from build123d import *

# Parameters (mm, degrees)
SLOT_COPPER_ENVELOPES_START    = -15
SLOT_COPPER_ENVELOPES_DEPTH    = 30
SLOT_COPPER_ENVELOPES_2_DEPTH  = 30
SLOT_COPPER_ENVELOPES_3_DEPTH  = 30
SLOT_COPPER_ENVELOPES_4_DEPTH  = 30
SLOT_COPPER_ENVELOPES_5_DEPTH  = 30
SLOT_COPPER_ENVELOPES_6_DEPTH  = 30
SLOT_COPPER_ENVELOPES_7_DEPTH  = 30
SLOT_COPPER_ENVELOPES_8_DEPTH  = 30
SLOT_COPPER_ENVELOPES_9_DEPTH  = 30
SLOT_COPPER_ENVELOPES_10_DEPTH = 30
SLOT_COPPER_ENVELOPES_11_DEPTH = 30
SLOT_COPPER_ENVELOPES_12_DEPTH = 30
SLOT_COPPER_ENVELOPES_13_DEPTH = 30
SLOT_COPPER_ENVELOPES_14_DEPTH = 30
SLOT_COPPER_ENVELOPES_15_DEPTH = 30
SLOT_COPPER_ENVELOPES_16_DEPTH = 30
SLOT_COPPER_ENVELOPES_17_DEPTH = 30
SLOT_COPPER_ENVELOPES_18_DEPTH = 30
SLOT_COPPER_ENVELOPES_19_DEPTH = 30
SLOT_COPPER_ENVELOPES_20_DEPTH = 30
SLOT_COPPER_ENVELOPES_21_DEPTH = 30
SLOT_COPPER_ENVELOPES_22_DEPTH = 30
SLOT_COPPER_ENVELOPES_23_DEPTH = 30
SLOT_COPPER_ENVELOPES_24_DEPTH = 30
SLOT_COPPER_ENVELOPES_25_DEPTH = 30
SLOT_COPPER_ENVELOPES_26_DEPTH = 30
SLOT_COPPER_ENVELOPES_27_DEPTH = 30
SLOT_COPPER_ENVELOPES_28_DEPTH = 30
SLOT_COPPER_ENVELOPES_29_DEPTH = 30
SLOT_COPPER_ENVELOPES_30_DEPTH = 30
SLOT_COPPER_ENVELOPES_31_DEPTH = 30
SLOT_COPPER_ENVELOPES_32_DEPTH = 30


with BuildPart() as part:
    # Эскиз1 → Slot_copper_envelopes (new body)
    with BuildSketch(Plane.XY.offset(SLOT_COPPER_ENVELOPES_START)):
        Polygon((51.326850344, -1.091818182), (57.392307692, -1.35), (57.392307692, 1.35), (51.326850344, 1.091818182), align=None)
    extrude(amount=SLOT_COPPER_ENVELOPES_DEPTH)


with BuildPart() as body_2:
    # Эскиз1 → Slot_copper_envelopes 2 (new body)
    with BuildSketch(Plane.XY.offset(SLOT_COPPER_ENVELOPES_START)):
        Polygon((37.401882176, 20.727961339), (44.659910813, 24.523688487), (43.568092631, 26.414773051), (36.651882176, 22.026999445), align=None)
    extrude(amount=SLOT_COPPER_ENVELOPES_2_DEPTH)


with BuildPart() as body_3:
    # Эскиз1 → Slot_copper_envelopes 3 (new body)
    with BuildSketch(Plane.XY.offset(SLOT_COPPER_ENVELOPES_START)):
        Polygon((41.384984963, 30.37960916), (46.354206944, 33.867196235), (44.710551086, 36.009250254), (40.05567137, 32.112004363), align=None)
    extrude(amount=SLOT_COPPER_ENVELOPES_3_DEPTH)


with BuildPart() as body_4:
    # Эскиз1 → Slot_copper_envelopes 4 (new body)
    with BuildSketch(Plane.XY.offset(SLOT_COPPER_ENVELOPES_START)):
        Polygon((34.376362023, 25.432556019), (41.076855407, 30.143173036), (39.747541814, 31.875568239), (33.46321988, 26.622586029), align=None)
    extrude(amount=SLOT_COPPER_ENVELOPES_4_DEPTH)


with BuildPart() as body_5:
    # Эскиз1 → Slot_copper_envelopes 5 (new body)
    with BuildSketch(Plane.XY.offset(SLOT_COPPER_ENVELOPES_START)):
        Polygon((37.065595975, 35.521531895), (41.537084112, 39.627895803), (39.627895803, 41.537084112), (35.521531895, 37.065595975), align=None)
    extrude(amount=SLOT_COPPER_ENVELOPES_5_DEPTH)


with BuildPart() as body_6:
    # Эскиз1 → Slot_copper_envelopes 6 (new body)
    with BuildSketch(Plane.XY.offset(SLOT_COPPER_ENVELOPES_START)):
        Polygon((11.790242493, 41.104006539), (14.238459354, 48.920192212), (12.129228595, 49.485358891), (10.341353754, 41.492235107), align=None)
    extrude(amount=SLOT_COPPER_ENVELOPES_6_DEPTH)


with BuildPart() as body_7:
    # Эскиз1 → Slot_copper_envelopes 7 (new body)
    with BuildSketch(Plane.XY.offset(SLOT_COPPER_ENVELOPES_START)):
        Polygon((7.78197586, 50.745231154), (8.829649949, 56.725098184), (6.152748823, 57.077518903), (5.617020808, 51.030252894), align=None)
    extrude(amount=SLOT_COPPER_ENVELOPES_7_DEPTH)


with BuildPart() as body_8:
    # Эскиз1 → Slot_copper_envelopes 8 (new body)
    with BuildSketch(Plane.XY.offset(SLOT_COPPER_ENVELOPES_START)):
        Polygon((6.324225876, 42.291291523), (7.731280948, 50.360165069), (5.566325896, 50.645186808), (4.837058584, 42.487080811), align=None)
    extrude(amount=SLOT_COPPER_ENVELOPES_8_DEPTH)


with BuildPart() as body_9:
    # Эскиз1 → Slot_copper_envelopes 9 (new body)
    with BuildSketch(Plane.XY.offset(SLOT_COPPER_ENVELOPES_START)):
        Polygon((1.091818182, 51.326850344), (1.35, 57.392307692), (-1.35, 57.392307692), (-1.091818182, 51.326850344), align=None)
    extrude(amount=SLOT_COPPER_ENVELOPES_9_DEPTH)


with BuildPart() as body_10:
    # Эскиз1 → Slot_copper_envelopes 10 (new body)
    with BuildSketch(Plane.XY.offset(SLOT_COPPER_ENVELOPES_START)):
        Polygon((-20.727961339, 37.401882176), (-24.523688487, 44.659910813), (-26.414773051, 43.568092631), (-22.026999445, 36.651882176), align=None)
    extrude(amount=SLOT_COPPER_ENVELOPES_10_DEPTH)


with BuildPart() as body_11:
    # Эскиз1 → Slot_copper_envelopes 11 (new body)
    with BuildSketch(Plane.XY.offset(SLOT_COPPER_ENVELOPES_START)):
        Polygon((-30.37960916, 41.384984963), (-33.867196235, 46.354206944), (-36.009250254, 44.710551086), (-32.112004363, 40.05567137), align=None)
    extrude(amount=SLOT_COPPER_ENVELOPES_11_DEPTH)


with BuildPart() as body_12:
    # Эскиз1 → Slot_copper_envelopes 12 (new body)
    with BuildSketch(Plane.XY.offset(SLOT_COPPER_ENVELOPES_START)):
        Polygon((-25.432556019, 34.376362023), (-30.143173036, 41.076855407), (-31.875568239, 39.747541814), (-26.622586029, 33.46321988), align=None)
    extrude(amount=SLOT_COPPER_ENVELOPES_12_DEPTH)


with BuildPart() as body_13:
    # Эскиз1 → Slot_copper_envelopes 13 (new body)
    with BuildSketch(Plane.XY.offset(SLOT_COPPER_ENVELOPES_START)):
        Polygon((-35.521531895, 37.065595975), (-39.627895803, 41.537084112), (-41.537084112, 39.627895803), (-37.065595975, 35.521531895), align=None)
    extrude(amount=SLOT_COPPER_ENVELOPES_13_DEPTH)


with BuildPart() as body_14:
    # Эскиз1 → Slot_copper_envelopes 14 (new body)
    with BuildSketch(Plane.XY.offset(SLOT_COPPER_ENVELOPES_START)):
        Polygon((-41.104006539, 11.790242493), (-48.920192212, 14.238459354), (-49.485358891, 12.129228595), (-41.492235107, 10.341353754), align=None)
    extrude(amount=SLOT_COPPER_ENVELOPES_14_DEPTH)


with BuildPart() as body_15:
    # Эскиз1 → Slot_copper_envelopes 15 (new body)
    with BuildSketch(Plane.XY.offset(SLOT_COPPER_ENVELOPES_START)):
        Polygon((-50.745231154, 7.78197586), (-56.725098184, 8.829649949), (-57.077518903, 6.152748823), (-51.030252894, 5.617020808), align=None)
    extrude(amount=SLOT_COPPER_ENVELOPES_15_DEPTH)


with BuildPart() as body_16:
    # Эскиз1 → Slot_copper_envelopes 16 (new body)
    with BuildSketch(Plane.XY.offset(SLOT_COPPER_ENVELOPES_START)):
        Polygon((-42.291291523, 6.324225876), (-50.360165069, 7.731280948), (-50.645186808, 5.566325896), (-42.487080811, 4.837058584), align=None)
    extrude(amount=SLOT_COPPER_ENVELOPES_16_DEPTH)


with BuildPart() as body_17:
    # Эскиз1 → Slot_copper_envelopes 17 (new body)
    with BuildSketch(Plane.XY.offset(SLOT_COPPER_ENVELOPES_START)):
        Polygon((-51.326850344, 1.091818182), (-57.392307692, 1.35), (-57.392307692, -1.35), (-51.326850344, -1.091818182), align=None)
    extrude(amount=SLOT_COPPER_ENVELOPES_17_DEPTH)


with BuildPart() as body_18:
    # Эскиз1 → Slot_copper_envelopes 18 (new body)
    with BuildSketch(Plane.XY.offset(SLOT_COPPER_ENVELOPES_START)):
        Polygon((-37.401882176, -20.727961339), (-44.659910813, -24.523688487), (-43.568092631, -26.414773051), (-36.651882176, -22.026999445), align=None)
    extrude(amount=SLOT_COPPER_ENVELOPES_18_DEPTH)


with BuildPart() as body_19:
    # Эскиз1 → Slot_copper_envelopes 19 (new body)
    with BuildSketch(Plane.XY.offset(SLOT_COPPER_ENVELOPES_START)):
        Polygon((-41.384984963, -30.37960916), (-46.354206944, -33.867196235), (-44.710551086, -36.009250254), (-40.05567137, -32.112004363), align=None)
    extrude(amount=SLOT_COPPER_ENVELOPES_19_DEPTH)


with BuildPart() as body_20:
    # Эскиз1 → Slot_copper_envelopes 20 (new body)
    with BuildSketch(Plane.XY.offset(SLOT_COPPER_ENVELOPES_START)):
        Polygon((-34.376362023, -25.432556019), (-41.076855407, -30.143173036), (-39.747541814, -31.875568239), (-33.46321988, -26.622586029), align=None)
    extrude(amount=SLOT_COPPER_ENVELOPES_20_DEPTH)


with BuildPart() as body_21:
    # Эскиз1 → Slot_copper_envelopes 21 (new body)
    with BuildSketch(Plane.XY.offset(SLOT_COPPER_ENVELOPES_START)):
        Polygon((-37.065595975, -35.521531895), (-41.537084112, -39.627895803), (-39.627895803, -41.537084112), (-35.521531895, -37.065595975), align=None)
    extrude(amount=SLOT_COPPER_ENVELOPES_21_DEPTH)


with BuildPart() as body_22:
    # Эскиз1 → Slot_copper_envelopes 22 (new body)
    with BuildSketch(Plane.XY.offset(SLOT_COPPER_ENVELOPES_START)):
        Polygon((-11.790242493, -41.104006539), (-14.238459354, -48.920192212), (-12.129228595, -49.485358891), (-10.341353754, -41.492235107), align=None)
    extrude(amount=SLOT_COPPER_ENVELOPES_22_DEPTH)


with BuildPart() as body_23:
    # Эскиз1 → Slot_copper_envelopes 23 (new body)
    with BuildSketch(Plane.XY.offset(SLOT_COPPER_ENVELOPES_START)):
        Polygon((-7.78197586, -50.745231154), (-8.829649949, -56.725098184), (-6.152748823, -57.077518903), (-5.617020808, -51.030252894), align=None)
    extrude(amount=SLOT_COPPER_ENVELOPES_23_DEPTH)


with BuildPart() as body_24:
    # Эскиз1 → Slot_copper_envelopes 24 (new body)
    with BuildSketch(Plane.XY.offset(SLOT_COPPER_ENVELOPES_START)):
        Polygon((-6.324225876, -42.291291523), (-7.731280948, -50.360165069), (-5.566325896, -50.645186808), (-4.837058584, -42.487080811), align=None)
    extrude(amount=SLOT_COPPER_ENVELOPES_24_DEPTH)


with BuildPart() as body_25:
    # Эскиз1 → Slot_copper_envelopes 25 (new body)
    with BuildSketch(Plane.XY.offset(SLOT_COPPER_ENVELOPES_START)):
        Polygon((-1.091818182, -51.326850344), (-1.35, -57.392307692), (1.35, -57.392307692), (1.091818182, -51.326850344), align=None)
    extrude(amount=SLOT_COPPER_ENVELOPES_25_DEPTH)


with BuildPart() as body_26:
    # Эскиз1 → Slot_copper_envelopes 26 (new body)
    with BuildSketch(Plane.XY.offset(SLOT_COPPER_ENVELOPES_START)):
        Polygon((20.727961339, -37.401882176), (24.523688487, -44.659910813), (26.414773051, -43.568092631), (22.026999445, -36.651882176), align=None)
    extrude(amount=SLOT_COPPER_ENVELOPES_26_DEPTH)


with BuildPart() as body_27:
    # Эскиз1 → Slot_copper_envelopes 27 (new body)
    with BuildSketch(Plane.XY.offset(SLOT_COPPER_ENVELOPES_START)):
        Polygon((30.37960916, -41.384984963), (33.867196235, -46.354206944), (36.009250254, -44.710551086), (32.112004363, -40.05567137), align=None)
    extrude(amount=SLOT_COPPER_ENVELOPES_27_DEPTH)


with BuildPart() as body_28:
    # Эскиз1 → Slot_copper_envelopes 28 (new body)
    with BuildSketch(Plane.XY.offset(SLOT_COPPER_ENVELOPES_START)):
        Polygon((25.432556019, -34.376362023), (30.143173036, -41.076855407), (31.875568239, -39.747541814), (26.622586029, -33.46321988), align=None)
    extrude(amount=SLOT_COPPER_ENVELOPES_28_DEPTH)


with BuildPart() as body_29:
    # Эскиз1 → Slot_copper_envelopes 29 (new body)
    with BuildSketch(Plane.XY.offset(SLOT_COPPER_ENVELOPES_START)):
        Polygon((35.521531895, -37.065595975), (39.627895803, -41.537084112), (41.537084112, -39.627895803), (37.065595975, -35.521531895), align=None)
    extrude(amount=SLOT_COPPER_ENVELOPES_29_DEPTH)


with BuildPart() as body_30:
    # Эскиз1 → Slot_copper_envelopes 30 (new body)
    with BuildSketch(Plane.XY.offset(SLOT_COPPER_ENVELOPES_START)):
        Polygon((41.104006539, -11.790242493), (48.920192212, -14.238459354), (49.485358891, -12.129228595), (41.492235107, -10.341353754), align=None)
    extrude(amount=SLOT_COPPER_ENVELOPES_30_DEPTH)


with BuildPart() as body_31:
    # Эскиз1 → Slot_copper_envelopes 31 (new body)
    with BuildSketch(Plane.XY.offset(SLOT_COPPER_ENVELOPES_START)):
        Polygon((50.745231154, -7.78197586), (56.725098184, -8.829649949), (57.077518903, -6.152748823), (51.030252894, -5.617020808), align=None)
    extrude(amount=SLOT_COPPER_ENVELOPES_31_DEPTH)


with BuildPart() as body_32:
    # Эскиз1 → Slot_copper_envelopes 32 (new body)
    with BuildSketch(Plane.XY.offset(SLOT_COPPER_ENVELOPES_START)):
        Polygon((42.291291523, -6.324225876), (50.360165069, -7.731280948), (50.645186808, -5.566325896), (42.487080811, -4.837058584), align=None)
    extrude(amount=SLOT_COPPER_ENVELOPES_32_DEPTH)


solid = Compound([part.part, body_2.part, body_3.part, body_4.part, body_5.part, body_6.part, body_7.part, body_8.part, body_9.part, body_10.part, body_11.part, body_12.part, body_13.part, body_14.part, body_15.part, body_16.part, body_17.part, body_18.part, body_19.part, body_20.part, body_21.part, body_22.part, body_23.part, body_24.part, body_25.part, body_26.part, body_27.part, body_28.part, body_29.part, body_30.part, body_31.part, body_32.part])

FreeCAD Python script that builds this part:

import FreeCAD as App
import Part
import Sketcher
Q = App.Units.Quantity


def add_polygon(sketch, points):
    """Adds a closed chain of lines whose ends are joined by coincident constraints."""
    first, n = sketch.GeometryCount, len(points)
    for a, b in zip(points, points[1:] + points[:1]):
        sketch.addGeometry(Part.LineSegment(App.Vector(*a, 0), App.Vector(*b, 0)), False)
    for i in range(n):
        sketch.addConstraint(Sketcher.Constraint("Coincident", first + i, 2, first + (i + 1) % n, 1))

doc = App.newDocument("Part")
body = doc.addObject("PartDesign::Body", "Body")

# Sketch on XY plane
sketch1 = body.newObject("Sketcher::SketchObject", "Sketch")
sketch1.AttachmentSupport = (doc.getObject("XY_Plane"), [""])
sketch1.MapMode = "FlatFace"
sketch1.AttachmentOffset = App.Placement(App.Vector(0, 0, -15), App.Rotation())
add_polygon(sketch1, [(51.3, -1.1), (57.4, -1.4), (57.4, 1.4), (51.3, 1.1)])  # lines 0-3
sketch1.addConstraint(Sketcher.Constraint("Vertical", 1))
sketch1.addConstraint(Sketcher.Constraint("Vertical", 3))
sketch1.addConstraint(Sketcher.Constraint("Equal", 0, 2))
sketch1.addConstraint(Sketcher.Constraint("DistanceY", 1, 1, 1, 2, Q("2.7 mm")))
sketch1.addConstraint(Sketcher.Constraint("DistanceY", 0, 2, -1, 1, Q("1.35 mm")))
sketch1.addConstraint(Sketcher.Constraint("Distance", 0, Q("6.07095 mm")))
sketch1.addConstraint(Sketcher.Constraint("DistanceY", 3, 2, 3, 1, Q("2.183636 mm")))
sketch1.addConstraint(Sketcher.Constraint("DistanceX", -1, 1, 2, 2, Q("51.32685 mm")))
pad1 = body.newObject("PartDesign::Pad", "Pad")
pad1.Profile = sketch1
pad1.Length = 30
body2 = doc.addObject("PartDesign::Body", "Body001")

# Sketch on XY plane
sketch2 = body2.newObject("Sketcher::SketchObject", "Sketch001")
sketch2.AttachmentSupport = (doc.getObject("XY_Plane001"), [""])
sketch2.MapMode = "FlatFace"
sketch2.AttachmentOffset = App.Placement(App.Vector(0, 0, -15), App.Rotation())
add_polygon(sketch2, [(37.4, 20.7), (44.7, 24.5), (43.6, 26.4), (36.7, 22)])  # lines 0-3
sketch2.addConstraint(Sketcher.Constraint("Parallel", 1, 3))
sketch2.addConstraint(Sketcher.Constraint("Equal", 0, 2))
sketch2.addConstraint(Sketcher.Constraint("Angle", 1, Q("120 deg")))
sketch2.addConstraint(Sketcher.Constraint("Distance", 3, Q("1.5 mm")))
sketch2.addConstraint(Sketcher.Constraint("DistanceY", -1, 1, 2, 2, Q("22.026999 mm")))
sketch2.addConstraint(Sketcher.Constraint("DistanceX", -1, 1, 0, 2, Q("44.659911 mm")))
sketch2.addConstraint(Sketcher.Constraint("DistanceY", -1, 1, 0, 2, Q("24.523688 mm")))
sketch2.addConstraint(Sketcher.Constraint("DistanceX", 1, 2, 0, 2, Q("1.091818 mm")))
pad2 = body2.newObject("PartDesign::Pad", "Pad001")
pad2.Profile = sketch2
pad2.Length = 30
body3 = doc.addObject("PartDesign::Body", "Body002")

# Sketch on XY plane
sketch3 = body3.newObject("Sketcher::SketchObject", "Sketch002")
sketch3.AttachmentSupport = (doc.getObject("XY_Plane002"), [""])
sketch3.MapMode = "FlatFace"
sketch3.AttachmentOffset = App.Placement(App.Vector(0, 0, -15), App.Rotation())
add_polygon(sketch3, [(41.4, 30.4), (46.4, 33.9), (44.7, 36), (40.1, 32.1)])  # lines 0-3
sketch3.addConstraint(Sketcher.Constraint("Parallel", 1, 3))
sketch3.addConstraint(Sketcher.Constraint("Equal", 0, 2))
sketch3.addConstraint(Sketcher.Constraint("Angle", 1, Q("127.5 deg")))
sketch3.addConstraint(Sketcher.Constraint("Distance", 1, Q("2.7 mm")))
sketch3.addConstraint(Sketcher.Constraint("Distance", 0, Q("6.07095 mm")))
sketch3.addConstraint(Sketcher.Constraint("DistanceX", -1, 1, 1, 2, Q("44.710551 mm")))
sketch3.addConstraint(Sketcher.Constraint("DistanceY", -1, 1, 1, 2, Q("36.00925 mm")))
sketch3.addConstraint(Sketcher.Constraint("DistanceX", -1, 1, 2, 2, Q("40.055671 mm")))
pad3 = body3.newObject("PartDesign::Pad", "Pad002")
pad3.Profile = sketch3
pad3.Length = 30
body4 = doc.addObject("PartDesign::Body", "Body003")

# Sketch on XY plane
sketch4 = body4.newObject("Sketcher::SketchObject", "Sketch003")
sketch4.AttachmentSupport = (doc.getObject("XY_Plane003"), [""])
sketch4.MapMode = "FlatFace"
sketch4.AttachmentOffset = App.Placement(App.Vector(0, 0, -15), App.Rotation())
add_polygon(sketch4, [(34.4, 25.4), (41.1, 30.1), (39.7, 31.9), (33.5, 26.6)])  # lines 0-3
sketch4.addConstraint(Sketcher.Constraint("Parallel", 1, 3))
sketch4.addConstraint(Sketcher.Constraint("Equal", 0, 2))
sketch4.addConstraint(Sketcher.Constraint("Angle", 1, Q("127.5 deg")))
sketch4.addConstraint(Sketcher.Constraint("Distance", 3, Q("1.5 mm")))
sketch4.addConstraint(Sketcher.Constraint("DistanceX", -1, 1, 1, 2, Q("39.747542 mm")))
sketch4.addConstraint(Sketcher.Constraint("DistanceY", -1, 1, 1, 2, Q("31.875568 mm")))
sketch4.addConstraint(Sketcher.Constraint("DistanceX", -1, 1, 2, 2, Q("33.46322 mm")))
sketch4.addConstraint(Sketcher.Constraint("Distance", 0, Q("8.190636 mm")))
pad4 = body4.newObject("PartDesign::Pad", "Pad003")
pad4.Profile = sketch4
pad4.Length = 30
body5 = doc.addObject("PartDesign::Body", "Body004")

# Sketch on XY plane
sketch5 = body5.newObject("Sketcher::SketchObject", "Sketch004")
sketch5.AttachmentSupport = (doc.getObject("XY_Plane004"), [""])
sketch5.MapMode = "FlatFace"
sketch5.AttachmentOffset = App.Placement(App.Vector(0, 0, -15), App.Rotation())
add_polygon(sketch5, [(37.1, 35.5), (41.5, 39.6), (39.6, 41.5), (35.5, 37.1)])  # lines 0-3
sketch5.addConstraint(Sketcher.Constraint("Parallel", 1, 3))
sketch5.addConstraint(Sketcher.Constraint("Equal", 0, 2))
sketch5.addConstraint(Sketcher.Constraint("Angle", 1, Q("135 deg")))
sketch5.addConstraint(Sketcher.Constraint("Distance", 1, Q("2.7 mm")))
sketch5.addConstraint(Sketcher.Constraint("DistanceY", 2, 2, 0, 2, Q("2.5623 mm")))
sketch5.addConstraint(Sketcher.Constraint("Distance", 0, Q("6.07095 mm")))
sketch5.addConstraint(Sketcher.Constraint("DistanceX", -1, 1, 2, 2, Q("35.521532 mm")))
sketch5.addConstraint(Sketcher.Constraint("DistanceY", -1, 1, 3, 2, Q("35.521532 mm")))
pad5 = body5.newObject("PartDesign::Pad", "Pad004")
pad5.Profile = sketch5
pad5.Length = 30
body6 = doc.addObject("PartDesign::Body", "Body005")

# Sketch on XY plane
sketch6 = body6.newObject("Sketcher::SketchObject", "Sketch005")
sketch6.AttachmentSupport = (doc.getObject("XY_Plane005"), [""])
sketch6.MapMode = "FlatFace"
sketch6.AttachmentOffset = App.Placement(App.Vector(0, 0, -15), App.Rotation())
add_polygon(sketch6, [(11.8, 41.1), (14.2, 48.9), (12.1, 49.5), (10.3, 41.5)])  # lines 0-3
sketch6.addConstraint(Sketcher.Constraint("Parallel", 1, 3))
sketch6.addConstraint(Sketcher.Constraint("Equal", 0, 2))
sketch6.addConstraint(Sketcher.Constraint("Angle", 1, Q("165 deg")))
sketch6.addConstraint(Sketcher.Constraint("Distance", 3, Q("1.5 mm")))
sketch6.addConstraint(Sketcher.Constraint("DistanceX", -1, 1, 0, 2, Q("14.238459 mm")))
sketch6.addConstraint(Sketcher.Constraint("DistanceX", -1, 1, 1, 2, Q("12.129229 mm")))
sketch6.addConstraint(Sketcher.Constraint("DistanceY", -1, 1, 1, 2, Q("49.485359 mm")))
sketch6.addConstraint(Sketcher.Constraint("Distance", 0, Q("8.190636 mm")))
pad6 = body6.newObject("PartDesign::Pad", "Pad005")
pad6.Profile = sketch6
pad6.Length = 30
body7 = doc.addObject("PartDesign::Body", "Body006")

# Sketch on XY plane
sketch7 = body7.newObject("Sketcher::SketchObject", "Sketch006")
sketch7.AttachmentSupport = (doc.getObject("XY_Plane006"), [""])
sketch7.MapMode = "FlatFace"
sketch7.AttachmentOffset = App.Placement(App.Vector(0, 0, -15), App.Rotation())
add_polygon(sketch7, [(7.8, 50.7), (8.8, 56.7), (6.2, 57.1), (5.6, 51)])  # lines 0-3
sketch7.addConstraint(Sketcher.Constraint("Parallel", 1, 3))
sketch7.addConstraint(Sketcher.Constraint("Equal", 0, 2))
sketch7.addConstraint(Sketcher.Constraint("Angle", 1, Q("172.5 deg")))
sketch7.addConstraint(Sketcher.Constraint("Distance", 1, Q("2.7 mm")))
sketch7.addConstraint(Sketcher.Constraint("DistanceY", -1, 1, 0, 2, Q("56.725098 mm")))
sketch7.addConstraint(Sketcher.Constraint("Distance", 0, Q("6.07095 mm")))
sketch7.addConstraint(Sketcher.Constraint("DistanceX", -1, 1, 0, 2, Q("8.82965 mm")))
sketch7.addConstraint(Sketcher.Constraint("DistanceX", -1, 1, 2, 2, Q("5.617021 mm")))
pad7 = body7.newObject("PartDesign::Pad", "Pad006")
pad7.Profile = sketch7
pad7.Length = 30
body8 = doc.addObject("PartDesign::Body", "Body007")

# Sketch on XY plane
sketch8 = body8.newObject("Sketcher::SketchObject", "Sketch007")
sketch8.AttachmentSupport = (doc.getObject("XY_Plane007"), [""])
sketch8.MapMode = "FlatFace"
sketch8.AttachmentOffset = App.Placement(App.Vector(0, 0, -15), App.Rotation())
add_polygon(sketch8, [(6.3, 42.3), (7.7, 50.4), (5.6, 50.6), (4.8, 42.5)])  # lines 0-3
sketch8.addConstraint(Sketcher.Constraint("Parallel", 1, 3))
sketch8.addConstraint(Sketcher.Constraint("Equal", 0, 2))
sketch8.addConstraint(Sketcher.Constraint("Angle", 1, Q("172.5 deg")))
sketch8.addConstraint(Sketcher.Constraint("Distance", 3, Q("1.5 mm")))
sketch8.addConstraint(Sketcher.Constraint("DistanceX", 1, 2, 3, 2, Q("0.7579 mm")))
sketch8.addConstraint(Sketcher.Constraint("DistanceX", -1, 1, 0, 2, Q("7.731281 mm")))
sketch8.addConstraint(Sketcher.Constraint("DistanceX", -1, 1, 2, 2, Q("4.837059 mm")))
sketch8.addConstraint(Sketcher.Constraint("DistanceY", -1, 1, 2, 2, Q("42.487081 mm")))
pad8 = body8.newObject("PartDesign::Pad", "Pad007")
pad8.Profile = sketch8
pad8.Length = 30
body9 = doc.addObject("PartDesign::Body", "Body008")

# Sketch on XY plane
sketch9 = body9.newObject("Sketcher::SketchObject", "Sketch008")
sketch9.AttachmentSupport = (doc.getObject("XY_Plane008"), [""])
sketch9.MapMode = "FlatFace"
sketch9.AttachmentOffset = App.Placement(App.Vector(0, 0, -15), App.Rotation())
add_polygon(sketch9, [(1.1, 51.3), (1.4, 57.4), (-1.4, 57.4), (-1.1, 51.3)])  # lines 0-3
sketch9.addConstraint(Sketcher.Constraint("Horizontal", 1))
sketch9.addConstraint(Sketcher.Constraint("Horizontal", 3))
sketch9.addConstraint(Sketcher.Constraint("Equal", 0, 2))
sketch9.addConstraint(Sketcher.Constraint("DistanceX", 1, 2, 1, 1, Q("2.7 mm")))
sketch9.addConstraint(Sketcher.Constraint("DistanceX", -1, 1, 0, 2, Q("1.35 mm")))
sketch9.addConstraint(Sketcher.Constraint("Distance", 0, Q("6.07095 mm")))
sketch9.addConstraint(Sketcher.Constraint("DistanceX", 3, 1, 3, 2, Q("2.183636 mm")))
sketch9.addConstraint(Sketcher.Constraint("DistanceY", -1, 1, 2, 2, Q("51.32685 mm")))
pad9 = body9.newObject("PartDesign::Pad", "Pad008")
pad9.Profile = sketch9
pad9.Length = 30
body10 = doc.addObject("PartDesign::Body", "Body009")

# Sketch on XY plane
sketch10 = body10.newObject("Sketcher::SketchObject", "Sketch009")
sketch10.AttachmentSupport = (doc.getObject("XY_Plane009"), [""])
sketch10.MapMode = "FlatFace"
sketch10.AttachmentOffset = App.Placement(App.Vector(0, 0, -15), App.Rotation())
add_polygon(sketch10, [(-20.7, 37.4), (-24.5, 44.7), (-26.4, 43.6), (-22, 36.7)])  # lines 0-3
sketch10.addConstraint(Sketcher.Constraint("Parallel", 1, 3))
sketch10.addConstraint(Sketcher.Constraint("Equal", 0, 2))
sketch10.addConstraint(Sketcher.Constraint("Angle", 1, Q("-150 deg")))
sketch10.addConstraint(Sketcher.Constraint("Distance", 3, Q("1.5 mm")))
sketch10.addConstraint(Sketcher.Constraint("DistanceX", 2, 2, -1, 1, Q("22.026999 mm")))
sketch10.addConstraint(Sketcher.Constraint("DistanceX", 0, 2, -1, 1, Q("24.523688 mm")))
sketch10.addConstraint(Sketcher.Constraint("DistanceY", -1, 1, 0, 2, Q("44.659911 mm")))
sketch10.addConstraint(Sketcher.Constraint("DistanceY", 1, 2, 0, 2, Q("1.091818 mm")))
pad10 = body10.newObject("PartDesign::Pad", "Pad009")
pad10.Profile = sketch10
pad10.Length = 30
body11 = doc.addObject("PartDesign::Body", "Body010")

# Sketch on XY plane
sketch11 = body11.newObject("Sketcher::SketchObject", "Sketch010")
sketch11.AttachmentSupport = (doc.getObject("XY_Plane010"), [""])
sketch11.MapMode = "FlatFace"
sketch11.AttachmentOffset = App.Placement(App.Vector(0, 0, -15), App.Rotation())
add_polygon(sketch11, [(-30.4, 41.4), (-33.9, 46.4), (-36, 44.7), (-32.1, 40.1)])  # lines 0-3
sketch11.addConstraint(Sketcher.Constraint("Parallel", 1, 3))
sketch11.addConstraint(Sketcher.Constraint("Equal", 0, 2))
sketch11.addConstraint(Sketcher.Constraint("Angle", 1, Q("-142.5 deg")))
sketch11.addConstraint(Sketcher.Constraint("Distance", 1, Q("2.7 mm")))
sketch11.addConstraint(Sketcher.Constraint("Distance", 0, Q("6.07095 mm")))
sketch11.addConstraint(Sketcher.Constraint("DistanceX", 1, 2, -1, 1, Q("36.00925 mm")))
sketch11.addConstraint(Sketcher.Constraint("DistanceY", -1, 1, 1, 2, Q("44.710551 mm")))
sketch11.addConstraint(Sketcher.Constraint("DistanceY", -1, 1, 2, 2, Q("40.055671 mm")))
pad11 = body11.newObject("PartDesign::Pad", "Pad010")
pad11.Profile = sketch11
pad11.Length = 30
body12 = doc.addObject("PartDesign::Body", "Body011")

# Sketch on XY plane
sketch12 = body12.newObject("Sketcher::SketchObject", "Sketch011")
sketch12.AttachmentSupport = (doc.getObject("XY_Plane011"), [""])
sketch12.MapMode = "FlatFace"
sketch12.AttachmentOffset = App.Placement(App.Vector(0, 0, -15), App.Rotation())
add_polygon(sketch12, [(-25.4, 34.4), (-30.1, 41.1), (-31.9, 39.7), (-26.6, 33.5)])  # lines 0-3
sketch12.addConstraint(Sketcher.Constraint("Parallel", 1, 3))
sketch12.addConstraint(Sketcher.Constraint("Equal", 0, 2))
sketch12.addConstraint(Sketcher.Constraint("Angle", 1, Q("-142.5 deg")))
sketch12.addConstraint(Sketcher.Constraint("Distance", 3, Q("1.5 mm")))
sketch12.addConstraint(Sketcher.Constraint("DistanceX", 1, 2, -1, 1, Q("31.875568 mm")))
sketch12.addConstraint(Sketcher.Constraint("DistanceY", -1, 1, 1, 2, Q("39.747542 mm")))
sketch12.addConstraint(Sketcher.Constraint("DistanceY", -1, 1, 2, 2, Q("33.46322 mm")))
sketch12.addConstraint(Sketcher.Constraint("Distance", 0, Q("8.190636 mm")))
pad12 = body12.newObject("PartDesign::Pad", "Pad011")
pad12.Profile = sketch12
pad12.Length = 30
body13 = doc.addObject("PartDesign::Body", "Body012")

# Sketch on XY plane
sketch13 = body13.newObject("Sketcher::SketchObject", "Sketch012")
sketch13.AttachmentSupport = (doc.getObject("XY_Plane012"), [""])
sketch13.MapMode = "FlatFace"
sketch13.AttachmentOffset = App.Placement(App.Vector(0, 0, -15), App.Rotation())
add_polygon(sketch13, [(-35.5, 37.1), (-39.6, 41.5), (-41.5, 39.6), (-37.1, 35.5)])  # lines 0-3
sketch13.addConstraint(Sketcher.Constraint("Parallel", 1, 3))
sketch13.addConstraint(Sketcher.Constraint("Equal", 0, 2))
sketch13.addConstraint(Sketcher.Constraint("Angle", 1, Q("-135 deg")))
sketch13.addConstraint(Sketcher.Constraint("Distance", 1, Q("2.7 mm")))
sketch13.addConstraint(Sketcher.Constraint("DistanceX", 0, 2, 2, 2, Q("2.5623 mm")))
sketch13.addConstraint(Sketcher.Constraint("Distance", 0, Q("6.07095 mm")))
sketch13.addConstraint(Sketcher.Constraint("DistanceY", -1, 1, 2, 2, Q("35.521532 mm")))
sketch13.addConstraint(Sketcher.Constraint("DistanceX", 3, 2, -1, 1, Q("35.521532 mm")))
pad13 = body13.newObject("PartDesign::Pad", "Pad012")
pad13.Profile = sketch13
pad13.Length = 30
body14 = doc.addObject("PartDesign::Body", "Body013")

# Sketch on XY plane
sketch14 = body14.newObject("Sketcher::SketchObject", "Sketch013")
sketch14.AttachmentSupport = (doc.getObject("XY_Plane013"), [""])
sketch14.MapMode = "FlatFace"
sketch14.AttachmentOffset = App.Placement(App.Vector(0, 0, -15), App.Rotation())
add_polygon(sketch14, [(-41.1, 11.8), (-48.9, 14.2), (-49.5, 12.1), (-41.5, 10.3)])  # lines 0-3
sketch14.addConstraint(Sketcher.Constraint("Parallel", 1, 3))
sketch14.addConstraint(Sketcher.Constraint("Equal", 0, 2))
sketch14.addConstraint(Sketcher.Constraint("Angle", 1, Q("-105 deg")))
sketch14.addConstraint(Sketcher.Constraint("Distance", 3, Q("1.5 mm")))
sketch14.addConstraint(Sketcher.Constraint("DistanceY", -1, 1, 0, 2, Q("14.238459 mm")))
sketch14.addConstraint(Sketcher.Constraint("DistanceX", 1, 2, -1, 1, Q("49.485359 mm")))
sketch14.addConstraint(Sketcher.Constraint("DistanceY", -1, 1, 1, 2, Q("12.129229 mm")))
sketch14.addConstraint(Sketcher.Constraint("Distance", 0, Q("8.190636 mm")))
pad14 = body14.newObject("PartDesign::Pad", "Pad013")
pad14.Profile = sketch14
pad14.Length = 30
body15 = doc.addObject("PartDesign::Body", "Body014")

# Sketch on XY plane
sketch15 = body15.newObject("Sketcher::SketchObject", "Sketch014")
sketch15.AttachmentSupport = (doc.getObject("XY_Plane014"), [""])
sketch15.MapMode = "FlatFace"
sketch15.AttachmentOffset = App.Placement(App.Vector(0, 0, -15), App.Rotation())
add_polygon(sketch15, [(-50.7, 7.8), (-56.7, 8.8), (-57.1, 6.2), (-51, 5.6)])  # lines 0-3
sketch15.addConstraint(Sketcher.Constraint("Parallel", 1, 3))
sketch15.addConstraint(Sketcher.Constraint("Equal", 0, 2))
sketch15.addConstraint(Sketcher.Constraint("Angle", 1, Q("-97.5 deg")))
sketch15.addConstraint(Sketcher.Constraint("Distance", 1, Q("2.7 mm")))
sketch15.addConstraint(Sketcher.Constraint("DistanceX", 0, 2, -1, 1, Q("56.725098 mm")))
sketch15.addConstraint(Sketcher.Constraint("Distance", 0, Q("6.07095 mm")))
sketch15.addConstraint(Sketcher.Constraint("DistanceY", -1, 1, 0, 2, Q("8.82965 mm")))
sketch15.addConstraint(Sketcher.Constraint("DistanceY", -1, 1, 2, 2, Q("5.617021 mm")))
pad15 = body15.newObject("PartDesign::Pad", "Pad014")
pad15.Profile = sketch15
pad15.Length = 30
body16 = doc.addObject("PartDesign::Body", "Body015")

# Sketch on XY plane
sketch16 = body16.newObject("Sketcher::SketchObject", "Sketch015")
sketch16.AttachmentSupport = (doc.getObject("XY_Plane015"), [""])
sketch16.MapMode = "FlatFace"
sketch16.AttachmentOffset = App.Placement(App.Vector(0, 0, -15), App.Rotation())
add_polygon(sketch16, [(-42.3, 6.3), (-50.4, 7.7), (-50.6, 5.6), (-42.5, 4.8)])  # lines 0-3
sketch16.addConstraint(Sketcher.Constraint("Parallel", 1, 3))
sketch16.addConstraint(Sketcher.Constraint("Equal", 0, 2))
sketch16.addConstraint(Sketcher.Constraint("Angle", 1, Q("-97.5 deg")))
sketch16.addConstraint(Sketcher.Constraint("Distance", 3, Q("1.5 mm")))
sketch16.addConstraint(Sketcher.Constraint("DistanceY", 1, 2, 3, 2, Q("0.7579 mm")))
sketch16.addConstraint(Sketcher.Constraint("DistanceY", -1, 1, 0, 2, Q("7.731281 mm")))
sketch16.addConstraint(Sketcher.Constraint("DistanceX", 2, 2, -1, 1, Q("42.487081 mm")))
sketch16.addConstraint(Sketcher.Constraint("DistanceY", -1, 1, 2, 2, Q("4.837059 mm")))
pad16 = body16.newObject("PartDesign::Pad", "Pad015")
pad16.Profile = sketch16
pad16.Length = 30
body17 = doc.addObject("PartDesign::Body", "Body016")

# Sketch on XY plane
sketch17 = body17.newObject("Sketcher::SketchObject", "Sketch016")
sketch17.AttachmentSupport = (doc.getObject("XY_Plane016"), [""])
sketch17.MapMode = "FlatFace"
sketch17.AttachmentOffset = App.Placement(App.Vector(0, 0, -15), App.Rotation())
add_polygon(sketch17, [(-51.3, 1.1), (-57.4, 1.4), (-57.4, -1.4), (-51.3, -1.1)])  # lines 0-3
sketch17.addConstraint(Sketcher.Constraint("Vertical", 1))
sketch17.addConstraint(Sketcher.Constraint("Vertical", 3))
sketch17.addConstraint(Sketcher.Constraint("Equal", 0, 2))
sketch17.addConstraint(Sketcher.Constraint("DistanceY", 1, 2, 1, 1, Q("2.7 mm")))
sketch17.addConstraint(Sketcher.Constraint("DistanceY", -1, 1, 0, 2, Q("1.35 mm")))
sketch17.addConstraint(Sketcher.Constraint("Distance", 0, Q("6.07095 mm")))
sketch17.addConstraint(Sketcher.Constraint("DistanceY", 3, 1, 3, 2, Q("2.183636 mm")))
sketch17.addConstraint(Sketcher.Constraint("DistanceX", 2, 2, -1, 1, Q("51.32685 mm")))
pad17 = body17.newObject("PartDesign::Pad", "Pad016")
pad17.Profile = sketch17
pad17.Length = 30
body18 = doc.addObject("PartDesign::Body", "Body017")

# Sketch on XY plane
sketch18 = body18.newObject("Sketcher::SketchObject", "Sketch017")
sketch18.AttachmentSupport = (doc.getObject("XY_Plane017"), [""])
sketch18.MapMode = "FlatFace"
sketch18.AttachmentOffset = App.Placement(App.Vector(0, 0, -15), App.Rotation())
add_polygon(sketch18, [(-37.4, -20.7), (-44.7, -24.5), (-43.6, -26.4), (-36.7, -22)])  # lines 0-3
sketch18.addConstraint(Sketcher.Constraint("Parallel", 1, 3))
sketch18.addConstraint(Sketcher.Constraint("Equal", 0, 2))
sketch18.addConstraint(Sketcher.Constraint("Angle", 1, Q("-60 deg")))
sketch18.addConstraint(Sketcher.Constraint("Distance", 3, Q("1.5 mm")))
sketch18.addConstraint(Sketcher.Constraint("DistanceY", 2, 2, -1, 1, Q("22.026999 mm")))
sketch18.addConstraint(Sketcher.Constraint("DistanceX", 0, 2, -1, 1, Q("44.659911 mm")))
sketch18.addConstraint(Sketcher.Constraint("DistanceY", 0, 2, -1, 1, Q("24.523688 mm")))
sketch18.addConstraint(Sketcher.Constraint("DistanceX", 0, 2, 1, 2, Q("1.091818 mm")))
pad18 = body18.newObject("PartDesign::Pad", "Pad017")
pad18.Profile = sketch18
pad18.Length = 30
body19 = doc.addObject("PartDesign::Body", "Body018")

# Sketch on XY plane
sketch19 = body19.newObject("Sketcher::SketchObject", "Sketch018")
sketch19.AttachmentSupport = (doc.getObject("XY_Plane018"), [""])
sketch19.MapMode = "FlatFace"
sketch19.AttachmentOffset = App.Placement(App.Vector(0, 0, -15), App.Rotation())
add_polygon(sketch19, [(-41.4, -30.4), (-46.4, -33.9), (-44.7, -36), (-40.1, -32.1)])  # lines 0-3
sketch19.addConstraint(Sketcher.Constraint("Parallel", 1, 3))
sketch19.addConstraint(Sketcher.Constraint("Equal", 0, 2))
sketch19.addConstraint(Sketcher.Constraint("Angle", 1, Q("-52.5 deg")))
sketch19.addConstraint(Sketcher.Constraint("Distance", 1, Q("2.7 mm")))
sketch19.addConstraint(Sketcher.Constraint("Distance", 0, Q("6.07095 mm")))
sketch19.addConstraint(Sketcher.Constraint("DistanceX", 1, 2, -1, 1, Q("44.710551 mm")))
sketch19.addConstraint(Sketcher.Constraint("DistanceY", 1, 2, -1, 1, Q("36.00925 mm")))
sketch19.addConstraint(Sketcher.Constraint("DistanceX", 2, 2, -1, 1, Q("40.055671 mm")))
pad19 = body19.newObject("PartDesign::Pad", "Pad018")
pad19.Profile = sketch19
pad19.Length = 30
body20 = doc.addObject("PartDesign::Body", "Body019")

# Sketch on XY plane
sketch20 = body20.newObject("Sketcher::SketchObject", "Sketch019")
sketch20.AttachmentSupport = (doc.getObject("XY_Plane019"), [""])
sketch20.MapMode = "FlatFace"
sketch20.AttachmentOffset = App.Placement(App.Vector(0, 0, -15), App.Rotation())
add_polygon(sketch20, [(-34.4, -25.4), (-41.1, -30.1), (-39.7, -31.9), (-33.5, -26.6)])  # lines 0-3
sketch20.addConstraint(Sketcher.Constraint("Parallel", 1, 3))
sketch20.addConstraint(Sketcher.Constraint("Equal", 0, 2))
sketch20.addConstraint(Sketcher.Constraint("Angle", 1, Q("-52.5 deg")))
sketch20.addConstraint(Sketcher.Constraint("Distance", 3, Q("1.5 mm")))
sketch20.addConstraint(Sketcher.Constraint("DistanceX", 1, 2, -1, 1, Q("39.747542 mm")))
sketch20.addConstraint(Sketcher.Constraint("DistanceY", 1, 2, -1, 1, Q("31.875568 mm")))
sketch20.addConstraint(Sketcher.Constraint("DistanceX", 2, 2, -1, 1, Q("33.46322 mm")))
sketch20.addConstraint(Sketcher.Constraint("Distance", 0, Q("8.190636 mm")))
pad20 = body20.newObject("PartDesign::Pad", "Pad019")
pad20.Profile = sketch20
pad20.Length = 30
body21 = doc.addObject("PartDesign::Body", "Body020")

# Sketch on XY plane
sketch21 = body21.newObject("Sketcher::SketchObject", "Sketch020")
sketch21.AttachmentSupport = (doc.getObject("XY_Plane020"), [""])
sketch21.MapMode = "FlatFace"
sketch21.AttachmentOffset = App.Placement(App.Vector(0, 0, -15), App.Rotation())
add_polygon(sketch21, [(-37.1, -35.5), (-41.5, -39.6), (-39.6, -41.5), (-35.5, -37.1)])  # lines 0-3
sketch21.addConstraint(Sketcher.Constraint("Parallel", 1, 3))
sketch21.addConstraint(Sketcher.Constraint("Equal", 0, 2))
sketch21.addConstraint(Sketcher.Constraint("Angle", 1, Q("-45 deg")))
sketch21.addConstraint(Sketcher.Constraint("Distance", 1, Q("2.7 mm")))
sketch21.addConstraint(Sketcher.Constraint("DistanceY", 0, 2, 2, 2, Q("2.5623 mm")))
sketch21.addConstraint(Sketcher.Constraint("Distance", 0, Q("6.07095 mm")))
sketch21.addConstraint(Sketcher.Constraint("DistanceX", 2, 2, -1, 1, Q("35.521532 mm")))
sketch21.addConstraint(Sketcher.Constraint("DistanceY", 3, 2, -1, 1, Q("35.521532 mm")))
pad21 = body21.newObject("PartDesign::Pad", "Pad020")
pad21.Profile = sketch21
pad21.Length = 30
body22 = doc.addObject("PartDesign::Body", "Body021")

# Sketch on XY plane
sketch22 = body22.newObject("Sketcher::SketchObject", "Sketch021")
sketch22.AttachmentSupport = (doc.getObject("XY_Plane021"), [""])
sketch22.MapMode = "FlatFace"
sketch22.AttachmentOffset = App.Placement(App.Vector(0, 0, -15), App.Rotation())
add_polygon(sketch22, [(-11.8, -41.1), (-14.2, -48.9), (-12.1, -49.5), (-10.3, -41.5)])  # lines 0-3
sketch22.addConstraint(Sketcher.Constraint("Parallel", 1, 3))
sketch22.addConstraint(Sketcher.Constraint("Equal", 0, 2))
sketch22.addConstraint(Sketcher.Constraint("Angle", 1, Q("-15 deg")))
sketch22.addConstraint(Sketcher.Constraint("Distance", 3, Q("1.5 mm")))
sketch22.addConstraint(Sketcher.Constraint("DistanceX", 0, 2, -1, 1, Q("14.238459 mm")))
sketch22.addConstraint(Sketcher.Constraint("DistanceX", 1, 2, -1, 1, Q("12.129229 mm")))
sketch22.addConstraint(Sketcher.Constraint("DistanceY", 1, 2, -1, 1, Q("49.485359 mm")))
sketch22.addConstraint(Sketcher.Constraint("Distance", 0, Q("8.190636 mm")))
pad22 = body22.newObject("PartDesign::Pad", "Pad021")
pad22.Profile = sketch22
pad22.Length = 30
body23 = doc.addObject("PartDesign::Body", "Body022")

# Sketch on XY plane
sketch23 = body23.newObject("Sketcher::SketchObject", "Sketch022")
sketch23.AttachmentSupport = (doc.getObject("XY_Plane022"), [""])
sketch23.MapMode = "FlatFace"
sketch23.AttachmentOffset = App.Placement(App.Vector(0, 0, -15), App.Rotation())
add_polygon(sketch23, [(-7.8, -50.7), (-8.8, -56.7), (-6.2, -57.1), (-5.6, -51)])  # lines 0-3
sketch23.addConstraint(Sketcher.Constraint("Parallel", 1, 3))
sketch23.addConstraint(Sketcher.Constraint("Equal", 0, 2))
sketch23.addConstraint(Sketcher.Constraint("Angle", 1, Q("-7.5 deg")))
sketch23.addConstraint(Sketcher.Constraint("Distance", 1, Q("2.7 mm")))
sketch23.addConstraint(Sketcher.Constraint("DistanceY", 0, 2, -1, 1, Q("56.725098 mm")))
sketch23.addConstraint(Sketcher.Constraint("Distance", 0, Q("6.07095 mm")))
sketch23.addConstraint(Sketcher.Constraint("DistanceX", 0, 2, -1, 1, Q("8.82965 mm")))
sketch23.addConstraint(Sketcher.Constraint("DistanceX", 2, 2, -1, 1, Q("5.617021 mm")))
pad23 = body23.newObject("PartDesign::Pad", "Pad022")
pad23.Profile = sketch23
pad23.Length = 30
body24 = doc.addObject("PartDesign::Body", "Body023")

# Sketch on XY plane
sketch24 = body24.newObject("Sketcher::SketchObject", "Sketch023")
sketch24.AttachmentSupport = (doc.getObject("XY_Plane023"), [""])
sketch24.MapMode = "FlatFace"
sketch24.AttachmentOffset = App.Placement(App.Vector(0, 0, -15), App.Rotation())
add_polygon(sketch24, [(-6.3, -42.3), (-7.7, -50.4), (-5.6, -50.6), (-4.8, -42.5)])  # lines 0-3
sketch24.addConstraint(Sketcher.Constraint("Parallel", 1, 3))
sketch24.addConstraint(Sketcher.Constraint("Equal", 0, 2))
sketch24.addConstraint(Sketcher.Constraint("Angle", 1, Q("-7.5 deg")))
sketch24.addConstraint(Sketcher.Constraint("Distance", 3, Q("1.5 mm")))
sketch24.addConstraint(Sketcher.Constraint("DistanceX", 3, 2, 1, 2, Q("0.7579 mm")))
sketch24.addConstraint(Sketcher.Constraint("DistanceX", 0, 2, -1, 1, Q("7.731281 mm")))
sketch24.addConstraint(Sketcher.Constraint("DistanceX", 2, 2, -1, 1, Q("4.837059 mm")))
sketch24.addConstraint(Sketcher.Constraint("DistanceY", 2, 2, -1, 1, Q("42.487081 mm")))
pad24 = body24.newObject("PartDesign::Pad", "Pad023")
pad24.Profile = sketch24
pad24.Length = 30
body25 = doc.addObject("PartDesign::Body", "Body024")

# Sketch on XY plane
sketch25 = body25.newObject("Sketcher::SketchObject", "Sketch024")
sketch25.AttachmentSupport = (doc.getObject("XY_Plane024"), [""])
sketch25.MapMode = "FlatFace"
sketch25.AttachmentOffset = App.Placement(App.Vector(0, 0, -15), App.Rotation())
add_polygon(sketch25, [(-1.1, -51.3), (-1.4, -57.4), (1.4, -57.4), (1.1, -51.3)])  # lines 0-3
sketch25.addConstraint(Sketcher.Constraint("Horizontal", 1))
sketch25.addConstraint(Sketcher.Constraint("Horizontal", 3))
sketch25.addConstraint(Sketcher.Constraint("Equal", 0, 2))
sketch25.addConstraint(Sketcher.Constraint("DistanceX", 1, 1, 1, 2, Q("2.7 mm")))
sketch25.addConstraint(Sketcher.Constraint("DistanceX", 0, 2, -1, 1, Q("1.35 mm")))
sketch25.addConstraint(Sketcher.Constraint("Distance", 0, Q("6.07095 mm")))
sketch25.addConstraint(Sketcher.Constraint("DistanceX", 3, 2, 3, 1, Q("2.183636 mm")))
sketch25.addConstraint(Sketcher.Constraint("DistanceY", 2, 2, -1, 1, Q("51.32685 mm")))
pad25 = body25.newObject("PartDesign::Pad", "Pad024")
pad25.Profile = sketch25
pad25.Length = 30
body26 = doc.addObject("PartDesign::Body", "Body025")

# Sketch on XY plane
sketch26 = body26.newObject("Sketcher::SketchObject", "Sketch025")
sketch26.AttachmentSupport = (doc.getObject("XY_Plane025"), [""])
sketch26.MapMode = "FlatFace"
sketch26.AttachmentOffset = App.Placement(App.Vector(0, 0, -15), App.Rotation())
add_polygon(sketch26, [(20.7, -37.4), (24.5, -44.7), (26.4, -43.6), (22, -36.7)])  # lines 0-3
sketch26.addConstraint(Sketcher.Constraint("Parallel", 1, 3))
sketch26.addConstraint(Sketcher.Constraint("Equal", 0, 2))
sketch26.addConstraint(Sketcher.Constraint("Angle", 1, Q("30 deg")))
sketch26.addConstraint(Sketcher.Constraint("Distance", 3, Q("1.5 mm")))
sketch26.addConstraint(Sketcher.Constraint("DistanceX", -1, 1, 2, 2, Q("22.026999 mm")))
sketch26.addConstraint(Sketcher.Constraint("DistanceX", -1, 1, 0, 2, Q("24.523688 mm")))
sketch26.addConstraint(Sketcher.Constraint("DistanceY", 0, 2, -1, 1, Q("44.659911 mm")))
sketch26.addConstraint(Sketcher.Constraint("DistanceY", 0, 2, 1, 2, Q("1.091818 mm")))
pad26 = body26.newObject("PartDesign::Pad", "Pad025")
pad26.Profile = sketch26
pad26.Length = 30
body27 = doc.addObject("PartDesign::Body", "Body026")

# Sketch on XY plane
sketch27 = body27.newObject("Sketcher::SketchObject", "Sketch026")
sketch27.AttachmentSupport = (doc.getObject("XY_Plane026"), [""])
sketch27.MapMode = "FlatFace"
sketch27.AttachmentOffset = App.Placement(App.Vector(0, 0, -15), App.Rotation())
add_polygon(sketch27, [(30.4, -41.4), (33.9, -46.4), (36, -44.7), (32.1, -40.1)])  # lines 0-3
sketch27.addConstraint(Sketcher.Constraint("Parallel", 1, 3))
sketch27.addConstraint(Sketcher.Constraint("Equal", 0, 2))
sketch27.addConstraint(Sketcher.Constraint("Angle", 1, Q("37.5 deg")))
sketch27.addConstraint(Sketcher.Constraint("Distance", 1, Q("2.7 mm")))
sketch27.addConstraint(Sketcher.Constraint("Distance", 0, Q("6.07095 mm")))
sketch27.addConstraint(Sketcher.Constraint("DistanceX", -1, 1, 1, 2, Q("36.00925 mm")))
sketch27.addConstraint(Sketcher.Constraint("DistanceY", 1, 2, -1, 1, Q("44.710551 mm")))
sketch27.addConstraint(Sketcher.Constraint("DistanceY", 2, 2, -1, 1, Q("40.055671 mm")))
pad27 = body27.newObject("PartDesign::Pad", "Pad026")
pad27.Profile = sketch27
pad27.Length = 30
body28 = doc.addObject("PartDesign::Body", "Body027")

# Sketch on XY plane
sketch28 = body28.newObject("Sketcher::SketchObject", "Sketch027")
sketch28.AttachmentSupport = (doc.getObject("XY_Plane027"), [""])
sketch28.MapMode = "FlatFace"
sketch28.AttachmentOffset = App.Placement(App.Vector(0, 0, -15), App.Rotation())
add_polygon(sketch28, [(25.4, -34.4), (30.1, -41.1), (31.9, -39.7), (26.6, -33.5)])  # lines 0-3
sketch28.addConstraint(Sketcher.Constraint("Parallel", 1, 3))
sketch28.addConstraint(Sketcher.Constraint("Equal", 0, 2))
sketch28.addConstraint(Sketcher.Constraint("Angle", 1, Q("37.5 deg")))
sketch28.addConstraint(Sketcher.Constraint("Distance", 3, Q("1.5 mm")))
sketch28.addConstraint(Sketcher.Constraint("DistanceX", -1, 1, 1, 2, Q("31.875568 mm")))
sketch28.addConstraint(Sketcher.Constraint("DistanceY", 1, 2, -1, 1, Q("39.747542 mm")))
sketch28.addConstraint(Sketcher.Constraint("DistanceY", 2, 2, -1, 1, Q("33.46322 mm")))
sketch28.addConstraint(Sketcher.Constraint("Distance", 0, Q("8.190636 mm")))
pad28 = body28.newObject("PartDesign::Pad", "Pad027")
pad28.Profile = sketch28
pad28.Length = 30
body29 = doc.addObject("PartDesign::Body", "Body028")

# Sketch on XY plane
sketch29 = body29.newObject("Sketcher::SketchObject", "Sketch028")
sketch29.AttachmentSupport = (doc.getObject("XY_Plane028"), [""])
sketch29.MapMode = "FlatFace"
sketch29.AttachmentOffset = App.Placement(App.Vector(0, 0, -15), App.Rotation())
add_polygon(sketch29, [(35.5, -37.1), (39.6, -41.5), (41.5, -39.6), (37.1, -35.5)])  # lines 0-3
sketch29.addConstraint(Sketcher.Constraint("Parallel", 1, 3))
sketch29.addConstraint(Sketcher.Constraint("Equal", 0, 2))
sketch29.addConstraint(Sketcher.Constraint("Angle", 1, Q("45 deg")))
sketch29.addConstraint(Sketcher.Constraint("Distance", 1, Q("2.7 mm")))
sketch29.addConstraint(Sketcher.Constraint("DistanceX", 2, 2, 0, 2, Q("2.5623 mm")))
sketch29.addConstraint(Sketcher.Constraint("Distance", 0, Q("6.07095 mm")))
sketch29.addConstraint(Sketcher.Constraint("DistanceY", 2, 2, -1, 1, Q("35.521532 mm")))
sketch29.addConstraint(Sketcher.Constraint("DistanceX", -1, 1, 3, 2, Q("35.521532 mm")))
pad29 = body29.newObject("PartDesign::Pad", "Pad028")
pad29.Profile = sketch29
pad29.Length = 30
body30 = doc.addObject("PartDesign::Body", "Body029")

# Sketch on XY plane
sketch30 = body30.newObject("Sketcher::SketchObject", "Sketch029")
sketch30.AttachmentSupport = (doc.getObject("XY_Plane029"), [""])
sketch30.MapMode = "FlatFace"
sketch30.AttachmentOffset = App.Placement(App.Vector(0, 0, -15), App.Rotation())
add_polygon(sketch30, [(41.1, -11.8), (48.9, -14.2), (49.5, -12.1), (41.5, -10.3)])  # lines 0-3
sketch30.addConstraint(Sketcher.Constraint("Parallel", 1, 3))
sketch30.addConstraint(Sketcher.Constraint("Equal", 0, 2))
sketch30.addConstraint(Sketcher.Constraint("Angle", 1, Q("75 deg")))
sketch30.addConstraint(Sketcher.Constraint("Distance", 3, Q("1.5 mm")))
sketch30.addConstraint(Sketcher.Constraint("DistanceY", 0, 2, -1, 1, Q("14.238459 mm")))
sketch30.addConstraint(Sketcher.Constraint("DistanceX", -1, 1, 1, 2, Q("49.485359 mm")))
sketch30.addConstraint(Sketcher.Constraint("DistanceY", 1, 2, -1, 1, Q("12.129229 mm")))
sketch30.addConstraint(Sketcher.Constraint("Distance", 0, Q("8.190636 mm")))
pad30 = body30.newObject("PartDesign::Pad", "Pad029")
pad30.Profile = sketch30
pad30.Length = 30
body31 = doc.addObject("PartDesign::Body", "Body030")

# Sketch on XY plane
sketch31 = body31.newObject("Sketcher::SketchObject", "Sketch030")
sketch31.AttachmentSupport = (doc.getObject("XY_Plane030"), [""])
sketch31.MapMode = "FlatFace"
sketch31.AttachmentOffset = App.Placement(App.Vector(0, 0, -15), App.Rotation())
add_polygon(sketch31, [(50.7, -7.8), (56.7, -8.8), (57.1, -6.2), (51, -5.6)])  # lines 0-3
sketch31.addConstraint(Sketcher.Constraint("Parallel", 1, 3))
sketch31.addConstraint(Sketcher.Constraint("Equal", 0, 2))
sketch31.addConstraint(Sketcher.Constraint("Angle", 1, Q("82.5 deg")))
sketch31.addConstraint(Sketcher.Constraint("Distance", 1, Q("2.7 mm")))
sketch31.addConstraint(Sketcher.Constraint("DistanceX", -1, 1, 0, 2, Q("56.725098 mm")))
sketch31.addConstraint(Sketcher.Constraint("Distance", 0, Q("6.07095 mm")))
sketch31.addConstraint(Sketcher.Constraint("DistanceY", 0, 2, -1, 1, Q("8.82965 mm")))
sketch31.addConstraint(Sketcher.Constraint("DistanceY", 2, 2, -1, 1, Q("5.617021 mm")))
pad31 = body31.newObject("PartDesign::Pad", "Pad030")
pad31.Profile = sketch31
pad31.Length = 30
body32 = doc.addObject("PartDesign::Body", "Body031")

# Sketch on XY plane
sketch32 = body32.newObject("Sketcher::SketchObject", "Sketch031")
sketch32.AttachmentSupport = (doc.getObject("XY_Plane031"), [""])
sketch32.MapMode = "FlatFace"
sketch32.AttachmentOffset = App.Placement(App.Vector(0, 0, -15), App.Rotation())
add_polygon(sketch32, [(42.3, -6.3), (50.4, -7.7), (50.6, -5.6), (42.5, -4.8)])  # lines 0-3
sketch32.addConstraint(Sketcher.Constraint("Parallel", 1, 3))
sketch32.addConstraint(Sketcher.Constraint("Equal", 0, 2))
sketch32.addConstraint(Sketcher.Constraint("Angle", 1, Q("82.5 deg")))
sketch32.addConstraint(Sketcher.Constraint("Distance", 3, Q("1.5 mm")))
sketch32.addConstraint(Sketcher.Constraint("DistanceY", 3, 2, 1, 2, Q("0.7579 mm")))
sketch32.addConstraint(Sketcher.Constraint("DistanceY", 0, 2, -1, 1, Q("7.731281 mm")))
sketch32.addConstraint(Sketcher.Constraint("DistanceX", -1, 1, 2, 2, Q("42.487081 mm")))
sketch32.addConstraint(Sketcher.Constraint("DistanceY", 2, 2, -1, 1, Q("4.837059 mm")))
pad32 = body32.newObject("PartDesign::Pad", "Pad031")
pad32.Profile = sketch32
pad32.Length = 30

doc.recompute()
